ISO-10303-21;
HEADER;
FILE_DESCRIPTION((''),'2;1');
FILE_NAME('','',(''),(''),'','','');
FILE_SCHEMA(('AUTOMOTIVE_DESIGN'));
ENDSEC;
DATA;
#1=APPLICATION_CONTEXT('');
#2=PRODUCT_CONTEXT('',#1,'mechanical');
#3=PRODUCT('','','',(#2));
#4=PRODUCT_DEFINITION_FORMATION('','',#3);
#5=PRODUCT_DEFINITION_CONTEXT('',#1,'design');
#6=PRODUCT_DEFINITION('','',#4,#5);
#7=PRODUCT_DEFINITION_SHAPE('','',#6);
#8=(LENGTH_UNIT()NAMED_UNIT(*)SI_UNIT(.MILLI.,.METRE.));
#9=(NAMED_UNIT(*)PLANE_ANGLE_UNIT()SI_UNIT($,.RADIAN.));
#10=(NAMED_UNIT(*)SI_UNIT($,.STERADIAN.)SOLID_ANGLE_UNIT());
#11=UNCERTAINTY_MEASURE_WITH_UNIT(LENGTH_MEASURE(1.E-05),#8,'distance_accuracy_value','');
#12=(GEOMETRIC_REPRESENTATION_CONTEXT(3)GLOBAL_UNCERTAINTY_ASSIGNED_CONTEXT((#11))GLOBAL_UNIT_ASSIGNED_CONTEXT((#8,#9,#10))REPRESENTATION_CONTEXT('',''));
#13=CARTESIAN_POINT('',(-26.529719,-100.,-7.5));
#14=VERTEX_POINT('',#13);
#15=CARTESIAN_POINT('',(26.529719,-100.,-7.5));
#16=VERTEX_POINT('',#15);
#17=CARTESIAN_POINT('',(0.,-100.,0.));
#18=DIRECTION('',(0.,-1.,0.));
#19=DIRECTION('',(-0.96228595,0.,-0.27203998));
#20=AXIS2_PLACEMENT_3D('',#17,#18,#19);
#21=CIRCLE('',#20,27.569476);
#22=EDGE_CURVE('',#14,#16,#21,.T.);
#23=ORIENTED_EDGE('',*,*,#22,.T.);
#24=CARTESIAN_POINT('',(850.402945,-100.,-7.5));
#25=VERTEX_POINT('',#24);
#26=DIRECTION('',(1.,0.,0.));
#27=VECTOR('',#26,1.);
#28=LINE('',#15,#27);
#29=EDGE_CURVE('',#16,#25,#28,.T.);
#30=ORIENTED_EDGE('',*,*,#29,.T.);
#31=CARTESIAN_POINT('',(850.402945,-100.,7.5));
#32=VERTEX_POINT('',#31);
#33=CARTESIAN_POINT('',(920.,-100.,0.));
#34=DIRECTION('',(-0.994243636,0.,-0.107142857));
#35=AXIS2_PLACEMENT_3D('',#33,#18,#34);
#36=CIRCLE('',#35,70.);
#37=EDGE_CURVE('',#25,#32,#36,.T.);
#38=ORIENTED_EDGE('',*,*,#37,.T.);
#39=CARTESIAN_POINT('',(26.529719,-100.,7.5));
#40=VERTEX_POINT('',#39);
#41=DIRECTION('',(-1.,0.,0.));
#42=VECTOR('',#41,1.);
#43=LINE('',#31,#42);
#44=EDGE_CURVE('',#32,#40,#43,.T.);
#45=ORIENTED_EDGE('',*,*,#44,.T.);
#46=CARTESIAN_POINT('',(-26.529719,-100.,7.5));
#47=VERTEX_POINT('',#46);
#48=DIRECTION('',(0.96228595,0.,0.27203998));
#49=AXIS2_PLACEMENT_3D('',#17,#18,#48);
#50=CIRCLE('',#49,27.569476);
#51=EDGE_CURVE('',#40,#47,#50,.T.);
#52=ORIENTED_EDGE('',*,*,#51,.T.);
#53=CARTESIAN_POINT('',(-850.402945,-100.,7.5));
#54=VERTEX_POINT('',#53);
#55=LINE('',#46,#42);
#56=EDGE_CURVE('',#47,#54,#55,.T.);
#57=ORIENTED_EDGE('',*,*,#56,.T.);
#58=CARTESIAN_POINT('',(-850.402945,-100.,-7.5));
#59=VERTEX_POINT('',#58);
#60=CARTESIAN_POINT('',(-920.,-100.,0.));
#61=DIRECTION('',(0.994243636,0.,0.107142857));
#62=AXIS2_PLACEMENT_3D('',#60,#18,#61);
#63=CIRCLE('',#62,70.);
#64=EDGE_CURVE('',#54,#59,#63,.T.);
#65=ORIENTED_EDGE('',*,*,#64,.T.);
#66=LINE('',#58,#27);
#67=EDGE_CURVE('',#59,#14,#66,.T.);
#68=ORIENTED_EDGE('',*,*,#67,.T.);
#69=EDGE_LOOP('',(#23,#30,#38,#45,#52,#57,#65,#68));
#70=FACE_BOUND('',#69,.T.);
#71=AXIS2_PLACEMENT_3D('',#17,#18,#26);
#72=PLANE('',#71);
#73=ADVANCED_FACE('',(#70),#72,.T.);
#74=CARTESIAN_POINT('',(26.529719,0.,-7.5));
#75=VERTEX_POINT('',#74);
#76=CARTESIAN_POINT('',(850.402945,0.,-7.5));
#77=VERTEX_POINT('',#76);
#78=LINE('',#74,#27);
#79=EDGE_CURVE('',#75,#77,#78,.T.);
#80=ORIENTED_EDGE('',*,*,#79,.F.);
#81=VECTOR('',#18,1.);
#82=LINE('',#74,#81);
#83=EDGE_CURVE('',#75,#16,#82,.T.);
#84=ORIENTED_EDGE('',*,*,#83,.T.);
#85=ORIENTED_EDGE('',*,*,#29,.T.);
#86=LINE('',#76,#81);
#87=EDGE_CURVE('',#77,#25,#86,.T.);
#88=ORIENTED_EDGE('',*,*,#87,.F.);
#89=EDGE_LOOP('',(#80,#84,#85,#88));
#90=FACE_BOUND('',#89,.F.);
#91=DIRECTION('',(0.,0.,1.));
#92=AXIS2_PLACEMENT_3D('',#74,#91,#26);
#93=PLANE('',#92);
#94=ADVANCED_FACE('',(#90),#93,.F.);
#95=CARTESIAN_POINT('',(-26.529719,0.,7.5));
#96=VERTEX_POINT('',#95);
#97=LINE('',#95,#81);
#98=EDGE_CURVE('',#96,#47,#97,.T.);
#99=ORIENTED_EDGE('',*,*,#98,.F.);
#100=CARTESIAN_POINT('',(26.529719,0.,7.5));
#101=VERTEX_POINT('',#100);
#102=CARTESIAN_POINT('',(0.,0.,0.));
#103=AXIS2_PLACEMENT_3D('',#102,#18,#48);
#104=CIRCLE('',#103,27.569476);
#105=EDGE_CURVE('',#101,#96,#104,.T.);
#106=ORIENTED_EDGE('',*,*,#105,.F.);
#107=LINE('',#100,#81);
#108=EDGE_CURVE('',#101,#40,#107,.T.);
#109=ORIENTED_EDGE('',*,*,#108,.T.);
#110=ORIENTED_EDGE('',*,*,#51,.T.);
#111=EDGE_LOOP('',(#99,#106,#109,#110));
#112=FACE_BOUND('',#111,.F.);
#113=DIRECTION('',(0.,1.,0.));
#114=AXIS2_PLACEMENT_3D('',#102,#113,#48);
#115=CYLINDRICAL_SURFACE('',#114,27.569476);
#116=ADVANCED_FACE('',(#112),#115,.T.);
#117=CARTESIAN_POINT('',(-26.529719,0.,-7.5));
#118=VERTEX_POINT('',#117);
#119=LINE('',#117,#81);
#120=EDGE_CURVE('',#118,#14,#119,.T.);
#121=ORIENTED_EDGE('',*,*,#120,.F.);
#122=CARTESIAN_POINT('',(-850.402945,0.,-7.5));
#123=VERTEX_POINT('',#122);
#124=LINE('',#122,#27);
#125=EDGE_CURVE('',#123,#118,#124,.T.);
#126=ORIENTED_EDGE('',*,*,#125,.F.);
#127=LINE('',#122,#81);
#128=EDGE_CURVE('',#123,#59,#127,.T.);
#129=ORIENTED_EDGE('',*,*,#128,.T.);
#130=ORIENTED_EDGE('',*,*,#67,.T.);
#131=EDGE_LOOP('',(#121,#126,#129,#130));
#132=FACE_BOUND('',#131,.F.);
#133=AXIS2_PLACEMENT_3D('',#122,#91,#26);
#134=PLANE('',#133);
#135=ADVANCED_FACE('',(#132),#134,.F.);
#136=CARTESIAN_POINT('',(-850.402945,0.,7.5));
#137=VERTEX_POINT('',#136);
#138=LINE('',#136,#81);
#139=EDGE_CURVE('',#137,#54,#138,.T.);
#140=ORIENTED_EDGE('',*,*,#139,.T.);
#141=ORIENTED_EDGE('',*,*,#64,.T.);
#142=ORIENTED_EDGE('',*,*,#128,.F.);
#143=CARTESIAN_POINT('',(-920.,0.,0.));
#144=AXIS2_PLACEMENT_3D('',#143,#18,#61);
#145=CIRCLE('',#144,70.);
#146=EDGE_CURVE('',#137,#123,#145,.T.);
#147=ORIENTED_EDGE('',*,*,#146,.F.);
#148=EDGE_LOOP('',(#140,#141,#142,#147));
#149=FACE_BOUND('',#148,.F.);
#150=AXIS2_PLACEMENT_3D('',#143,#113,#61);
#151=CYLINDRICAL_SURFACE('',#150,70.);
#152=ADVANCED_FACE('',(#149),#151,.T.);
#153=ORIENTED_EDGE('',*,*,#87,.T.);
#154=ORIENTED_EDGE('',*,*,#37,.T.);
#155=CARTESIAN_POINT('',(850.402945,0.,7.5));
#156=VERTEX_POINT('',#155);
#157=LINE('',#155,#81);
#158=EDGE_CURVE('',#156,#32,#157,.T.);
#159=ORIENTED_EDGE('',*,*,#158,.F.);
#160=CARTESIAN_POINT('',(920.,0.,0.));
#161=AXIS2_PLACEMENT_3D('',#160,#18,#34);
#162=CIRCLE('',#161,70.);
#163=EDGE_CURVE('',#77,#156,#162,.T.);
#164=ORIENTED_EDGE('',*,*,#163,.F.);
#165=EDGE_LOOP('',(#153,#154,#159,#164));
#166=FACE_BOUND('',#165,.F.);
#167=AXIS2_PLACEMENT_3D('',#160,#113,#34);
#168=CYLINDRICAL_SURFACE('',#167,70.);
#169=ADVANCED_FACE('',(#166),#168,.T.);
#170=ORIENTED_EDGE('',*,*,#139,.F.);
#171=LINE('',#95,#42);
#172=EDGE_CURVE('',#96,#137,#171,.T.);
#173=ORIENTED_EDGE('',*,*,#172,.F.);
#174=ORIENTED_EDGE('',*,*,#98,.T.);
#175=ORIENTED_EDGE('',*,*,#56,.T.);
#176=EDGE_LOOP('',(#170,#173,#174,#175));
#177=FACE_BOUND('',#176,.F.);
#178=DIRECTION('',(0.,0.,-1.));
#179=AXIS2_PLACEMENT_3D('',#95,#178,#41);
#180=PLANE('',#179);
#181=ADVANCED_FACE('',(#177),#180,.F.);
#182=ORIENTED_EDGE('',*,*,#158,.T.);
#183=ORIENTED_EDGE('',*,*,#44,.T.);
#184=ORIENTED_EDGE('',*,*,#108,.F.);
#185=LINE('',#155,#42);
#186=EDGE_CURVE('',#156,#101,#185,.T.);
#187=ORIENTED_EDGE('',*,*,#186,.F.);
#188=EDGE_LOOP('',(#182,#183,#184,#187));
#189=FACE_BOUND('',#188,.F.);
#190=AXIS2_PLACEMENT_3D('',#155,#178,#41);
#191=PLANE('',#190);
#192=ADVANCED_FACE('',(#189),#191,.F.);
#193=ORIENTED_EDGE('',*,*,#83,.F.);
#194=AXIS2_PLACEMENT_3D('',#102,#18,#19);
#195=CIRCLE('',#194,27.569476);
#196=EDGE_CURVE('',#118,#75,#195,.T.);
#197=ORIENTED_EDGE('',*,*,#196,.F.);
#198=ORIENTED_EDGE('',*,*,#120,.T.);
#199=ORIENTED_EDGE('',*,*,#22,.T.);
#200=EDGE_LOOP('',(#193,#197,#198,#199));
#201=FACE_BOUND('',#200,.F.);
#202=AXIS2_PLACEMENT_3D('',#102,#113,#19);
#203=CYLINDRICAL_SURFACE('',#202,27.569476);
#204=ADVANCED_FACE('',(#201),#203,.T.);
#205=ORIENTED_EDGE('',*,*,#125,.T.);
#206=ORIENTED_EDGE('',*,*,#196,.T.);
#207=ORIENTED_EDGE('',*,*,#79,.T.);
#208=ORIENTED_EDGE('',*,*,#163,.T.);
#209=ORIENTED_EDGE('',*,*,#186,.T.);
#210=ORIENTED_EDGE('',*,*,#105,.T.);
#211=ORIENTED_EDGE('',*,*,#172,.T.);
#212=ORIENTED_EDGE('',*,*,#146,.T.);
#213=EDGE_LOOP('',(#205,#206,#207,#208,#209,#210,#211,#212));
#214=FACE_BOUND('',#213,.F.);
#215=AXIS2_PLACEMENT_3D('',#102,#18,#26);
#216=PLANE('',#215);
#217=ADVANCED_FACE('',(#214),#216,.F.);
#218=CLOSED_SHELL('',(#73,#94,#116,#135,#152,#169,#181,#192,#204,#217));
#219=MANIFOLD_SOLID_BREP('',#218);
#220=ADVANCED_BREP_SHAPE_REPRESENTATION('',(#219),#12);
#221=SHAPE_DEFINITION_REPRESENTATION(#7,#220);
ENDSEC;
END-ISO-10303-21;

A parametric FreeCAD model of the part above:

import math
import FreeCAD as App
import Part
import Sketcher
from FreeCAD import Vector
Q = App.Units.Quantity

doc = App.newDocument("Part")
body = doc.addObject("PartDesign::Body", "Body")

# Sketch on XZ plane
sketch1 = doc.addObject("Sketcher::SketchObject", "Sketch")
body.addObject(sketch1)
sketch1.AttachmentSupport = (doc.XZ_Plane, [""])
sketch1.MapMode = "FlatFace"
sketch1.addGeometry(Part.LineSegment(Vector(-27, 8, 0), Vector(-850, 8, 0)), False)
sketch1.addGeometry(Part.ArcOfCircle(Part.Circle(Vector(-920, 0, 0), Vector(0, 0, 1), 70), math.radians(6), math.radians(354)), False)
sketch1.addGeometry(Part.LineSegment(Vector(-850, -8, 0), Vector(-27, -8, 0)), False)
sketch1.addGeometry(Part.ArcOfCircle(Part.Circle(Vector(0, 0, 0), Vector(0, 0, 1), 28), math.radians(-164), math.radians(-16)), False)
sketch1.addGeometry(Part.LineSegment(Vector(27, -8, 0), Vector(850, -8, 0)), False)
sketch1.addGeometry(Part.ArcOfCircle(Part.Circle(Vector(920, 0, 0), Vector(0, 0, 1), 70), math.radians(-174), math.radians(174)), False)
sketch1.addGeometry(Part.LineSegment(Vector(850, 8, 0), Vector(27, 8, 0)), False)
sketch1.addGeometry(Part.ArcOfCircle(Part.Circle(Vector(0, 0, 0), Vector(0, 0, 1), 28), math.radians(16), math.radians(164)), False)
sketch1.addConstraint(Sketcher.Constraint("Coincident", 0, 2, 1, 1))
sketch1.addConstraint(Sketcher.Constraint("Coincident", 1, 2, 2, 1))
sketch1.addConstraint(Sketcher.Constraint("Coincident", 2, 2, 3, 1))
sketch1.addConstraint(Sketcher.Constraint("Coincident", 3, 2, 4, 1))
sketch1.addConstraint(Sketcher.Constraint("Coincident", 4, 2, 5, 1))
sketch1.addConstraint(Sketcher.Constraint("Coincident", 5, 2, 6, 1))
sketch1.addConstraint(Sketcher.Constraint("Coincident", 6, 2, 7, 1))
sketch1.addConstraint(Sketcher.Constraint("Coincident", 7, 2, 0, 1))
sketch1.addConstraint(Sketcher.Constraint("Horizontal", 0))
sketch1.addConstraint(Sketcher.Constraint("Horizontal", 2))
sketch1.addConstraint(Sketcher.Constraint("Horizontal", 4))
sketch1.addConstraint(Sketcher.Constraint("Horizontal", 6))
sketch1.addConstraint(Sketcher.Constraint("Coincident", 3, 3, -1, 1))
sketch1.addConstraint(Sketcher.Constraint("Coincident", 7, 3, -1, 1))
sketch1.addConstraint(Sketcher.Constraint("Equal", 1, 5))
sketch1.addConstraint(Sketcher.Constraint("Equal", 3, 7))
sketch1.addConstraint(Sketcher.Constraint("Symmetric", 1, 3, 5, 3, -1, 1))
sketch1.addConstraint(Sketcher.Constraint("Symmetric", 1, 2, 4, 2, -2))
sketch1.addConstraint(Sketcher.Constraint("Horizontal", 0, 2, 5, 2))
sketch1.addConstraint(Sketcher.Constraint("Vertical", 0, 2, 1, 2))
sketch1.addConstraint(Sketcher.Constraint("Radius", 1, Q("70 mm")))
sketch1.addConstraint(Sketcher.Constraint("DistanceX", 1, 3, -1, 1, Q("920 mm")))
sketch1.addConstraint(Sketcher.Constraint("DistanceY", 1, 2, 0, 2, Q("15 mm")))
sketch1.addConstraint(Sketcher.Constraint("Radius", 3, Q("27.569476 mm")))
pad1 = doc.addObject("PartDesign::Pad", "Pad")
body.addObject(pad1)
pad1.Profile = sketch1
pad1.Length = 100

doc.recompute()
